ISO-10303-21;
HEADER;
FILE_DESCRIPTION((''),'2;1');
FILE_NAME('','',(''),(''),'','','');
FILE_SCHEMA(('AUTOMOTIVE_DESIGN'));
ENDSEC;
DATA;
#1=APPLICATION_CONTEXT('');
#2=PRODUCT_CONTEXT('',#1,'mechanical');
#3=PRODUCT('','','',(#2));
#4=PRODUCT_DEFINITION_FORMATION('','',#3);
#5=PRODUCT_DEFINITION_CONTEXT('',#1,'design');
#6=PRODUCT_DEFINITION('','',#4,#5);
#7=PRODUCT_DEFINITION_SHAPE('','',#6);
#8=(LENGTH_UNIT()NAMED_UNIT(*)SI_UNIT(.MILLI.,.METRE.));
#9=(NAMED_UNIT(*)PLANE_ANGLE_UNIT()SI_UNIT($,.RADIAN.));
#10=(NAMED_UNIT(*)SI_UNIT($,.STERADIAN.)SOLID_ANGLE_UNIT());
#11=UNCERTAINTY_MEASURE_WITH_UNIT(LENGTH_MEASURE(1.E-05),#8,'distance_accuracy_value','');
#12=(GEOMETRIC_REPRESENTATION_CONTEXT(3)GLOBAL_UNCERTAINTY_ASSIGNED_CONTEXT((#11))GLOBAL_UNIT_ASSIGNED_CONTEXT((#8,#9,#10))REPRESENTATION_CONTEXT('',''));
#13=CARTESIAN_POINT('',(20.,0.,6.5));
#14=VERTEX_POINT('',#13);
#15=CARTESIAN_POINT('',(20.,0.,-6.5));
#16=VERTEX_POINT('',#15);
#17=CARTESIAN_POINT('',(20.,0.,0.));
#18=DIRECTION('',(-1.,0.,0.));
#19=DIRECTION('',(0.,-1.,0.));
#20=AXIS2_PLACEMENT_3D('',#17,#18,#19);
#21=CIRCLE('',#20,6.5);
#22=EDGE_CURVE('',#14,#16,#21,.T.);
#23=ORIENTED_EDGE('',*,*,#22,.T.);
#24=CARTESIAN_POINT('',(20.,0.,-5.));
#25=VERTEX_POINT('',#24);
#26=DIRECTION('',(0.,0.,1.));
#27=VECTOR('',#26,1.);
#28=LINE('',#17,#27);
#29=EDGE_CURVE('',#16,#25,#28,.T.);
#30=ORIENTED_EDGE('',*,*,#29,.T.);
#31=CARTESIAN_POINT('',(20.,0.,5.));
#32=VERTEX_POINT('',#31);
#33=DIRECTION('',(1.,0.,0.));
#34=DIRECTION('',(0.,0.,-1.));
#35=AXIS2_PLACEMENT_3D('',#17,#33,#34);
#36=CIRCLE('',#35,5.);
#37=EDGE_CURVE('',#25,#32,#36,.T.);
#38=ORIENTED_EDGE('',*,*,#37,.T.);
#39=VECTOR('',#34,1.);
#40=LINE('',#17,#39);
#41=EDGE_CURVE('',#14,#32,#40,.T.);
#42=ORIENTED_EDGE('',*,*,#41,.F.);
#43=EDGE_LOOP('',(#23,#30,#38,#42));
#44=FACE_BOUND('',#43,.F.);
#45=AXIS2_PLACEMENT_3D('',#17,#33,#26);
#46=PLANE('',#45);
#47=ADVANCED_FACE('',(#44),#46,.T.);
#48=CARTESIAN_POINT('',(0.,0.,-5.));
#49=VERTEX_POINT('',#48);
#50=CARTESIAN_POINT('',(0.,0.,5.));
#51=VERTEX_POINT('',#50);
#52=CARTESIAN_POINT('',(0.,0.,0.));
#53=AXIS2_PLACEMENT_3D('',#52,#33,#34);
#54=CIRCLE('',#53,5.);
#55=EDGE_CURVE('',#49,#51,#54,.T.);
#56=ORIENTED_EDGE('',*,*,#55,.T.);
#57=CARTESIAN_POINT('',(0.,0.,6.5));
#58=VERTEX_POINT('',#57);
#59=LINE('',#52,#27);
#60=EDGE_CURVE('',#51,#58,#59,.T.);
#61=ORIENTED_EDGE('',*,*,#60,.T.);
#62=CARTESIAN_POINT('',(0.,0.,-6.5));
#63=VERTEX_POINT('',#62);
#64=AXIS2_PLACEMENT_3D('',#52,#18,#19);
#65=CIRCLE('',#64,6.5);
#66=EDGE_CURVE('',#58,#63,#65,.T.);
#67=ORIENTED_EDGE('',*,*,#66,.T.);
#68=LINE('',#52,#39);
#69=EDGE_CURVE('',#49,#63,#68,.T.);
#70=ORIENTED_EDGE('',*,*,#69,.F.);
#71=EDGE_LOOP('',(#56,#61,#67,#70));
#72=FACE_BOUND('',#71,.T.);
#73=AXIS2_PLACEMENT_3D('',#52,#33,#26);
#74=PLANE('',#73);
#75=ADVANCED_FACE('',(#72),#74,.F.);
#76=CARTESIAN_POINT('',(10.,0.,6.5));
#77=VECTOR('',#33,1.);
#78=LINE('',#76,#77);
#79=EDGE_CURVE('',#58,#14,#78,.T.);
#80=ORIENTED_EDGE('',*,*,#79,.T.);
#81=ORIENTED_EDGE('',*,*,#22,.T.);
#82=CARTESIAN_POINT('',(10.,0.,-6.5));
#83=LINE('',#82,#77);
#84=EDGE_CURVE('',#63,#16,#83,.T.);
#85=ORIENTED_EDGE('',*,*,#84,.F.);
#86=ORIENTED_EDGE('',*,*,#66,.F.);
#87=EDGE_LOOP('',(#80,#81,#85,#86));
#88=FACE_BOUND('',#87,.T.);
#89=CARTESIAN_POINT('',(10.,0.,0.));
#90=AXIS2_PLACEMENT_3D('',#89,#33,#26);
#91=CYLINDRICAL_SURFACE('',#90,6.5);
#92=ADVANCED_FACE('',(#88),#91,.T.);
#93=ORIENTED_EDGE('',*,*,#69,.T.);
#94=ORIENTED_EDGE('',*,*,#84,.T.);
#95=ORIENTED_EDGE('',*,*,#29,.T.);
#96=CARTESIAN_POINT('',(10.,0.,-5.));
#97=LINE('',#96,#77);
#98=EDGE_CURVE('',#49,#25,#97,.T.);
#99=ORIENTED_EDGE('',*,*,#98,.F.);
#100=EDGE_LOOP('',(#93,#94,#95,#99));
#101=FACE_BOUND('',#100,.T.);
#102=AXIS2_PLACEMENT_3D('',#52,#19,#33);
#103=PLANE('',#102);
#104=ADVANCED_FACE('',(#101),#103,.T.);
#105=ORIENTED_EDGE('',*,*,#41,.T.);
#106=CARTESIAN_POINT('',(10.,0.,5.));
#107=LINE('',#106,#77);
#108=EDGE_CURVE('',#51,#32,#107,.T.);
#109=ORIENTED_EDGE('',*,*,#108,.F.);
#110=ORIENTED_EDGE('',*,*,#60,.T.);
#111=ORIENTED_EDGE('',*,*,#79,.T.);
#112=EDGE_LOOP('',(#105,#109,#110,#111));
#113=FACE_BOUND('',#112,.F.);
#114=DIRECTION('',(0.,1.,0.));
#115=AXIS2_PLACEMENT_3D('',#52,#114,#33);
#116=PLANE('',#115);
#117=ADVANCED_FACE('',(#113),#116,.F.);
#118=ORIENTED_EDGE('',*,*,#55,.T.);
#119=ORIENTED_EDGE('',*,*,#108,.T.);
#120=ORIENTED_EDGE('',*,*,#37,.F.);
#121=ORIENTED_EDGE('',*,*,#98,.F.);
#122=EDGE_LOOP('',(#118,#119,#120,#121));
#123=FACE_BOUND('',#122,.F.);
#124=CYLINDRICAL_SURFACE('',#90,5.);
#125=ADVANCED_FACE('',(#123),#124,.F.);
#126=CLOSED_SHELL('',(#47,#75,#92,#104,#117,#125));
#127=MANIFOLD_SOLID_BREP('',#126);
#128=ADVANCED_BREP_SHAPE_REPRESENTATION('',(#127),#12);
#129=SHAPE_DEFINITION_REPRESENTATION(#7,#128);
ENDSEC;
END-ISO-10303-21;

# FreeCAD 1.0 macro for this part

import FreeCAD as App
import Part
import Sketcher


def add_polygon(sketch, points):
    """Adds a closed chain of lines whose ends are joined by coincident constraints."""
    first, n = sketch.GeometryCount, len(points)
    for a, b in zip(points, points[1:] + points[:1]):
        sketch.addGeometry(Part.LineSegment(App.Vector(*a, 0), App.Vector(*b, 0)), False)
    for i in range(n):
        sketch.addConstraint(Sketcher.Constraint("Coincident", first + i, 2, first + (i + 1) % n, 1))

doc = App.newDocument("Part")
body = doc.addObject("PartDesign::Body", "Body")

sketch1 = body.newObject("Sketcher::SketchObject", "Sketch")
sketch1.AttachmentSupport = (doc.getObject("XZ_Plane"), [""])
sketch1.MapMode = "FlatFace"
add_polygon(sketch1, [(0, 6.5), (0, 5), (20, 5), (20, 6.5)])
sketch1.addConstraint([
    Sketcher.Constraint("Vertical", 0),
    Sketcher.Constraint("Horizontal", 1),
    Sketcher.Constraint("Vertical", 2),
    Sketcher.Constraint("Horizontal", 3),
    Sketcher.Constraint("PointOnObject", 0, 2, -2),
    Sketcher.Constraint("DistanceX", 1, 1, 1, 2, 20.0),
    Sketcher.Constraint("DistanceY", 0, 2, 0, 1, 1.5),
    Sketcher.Constraint("DistanceY", -1, 1, 0, 2, 5.0),
])
revolution = body.newObject("PartDesign::Revolution", "Revolution")
revolution.Profile = sketch1
revolution.ReferenceAxis = (sketch1, ["H_Axis"])
revolution.Angle = 360

sketch2 = body.newObject("Sketcher::SketchObject", "Sketch001")
sketch2.AttachmentSupport = (doc.getObject("XY_Plane"), [""])
sketch2.MapMode = "FlatFace"
add_polygon(sketch2, [(0, 0), (0, -9), (23, -9), (23, 0)])
sketch2.addConstraint([
    Sketcher.Constraint("Vertical", 0),
    Sketcher.Constraint("Horizontal", 1),
    Sketcher.Constraint("Vertical", 2),
    Sketcher.Constraint("Horizontal", 3),
    Sketcher.Constraint("Coincident", 3, 2, -1, 1),
    Sketcher.Constraint("DistanceX", 1, 1, 1, 2, 22.957573),
    Sketcher.Constraint("DistanceY", 0, 2, 0, 1, 8.518026),
])
pocket1 = body.newObject("PartDesign::Pocket", "Pocket")
pocket1.Profile = sketch2
pocket1.Type = "ThroughAll"
pocket1.Midplane = True

doc.recompute()
